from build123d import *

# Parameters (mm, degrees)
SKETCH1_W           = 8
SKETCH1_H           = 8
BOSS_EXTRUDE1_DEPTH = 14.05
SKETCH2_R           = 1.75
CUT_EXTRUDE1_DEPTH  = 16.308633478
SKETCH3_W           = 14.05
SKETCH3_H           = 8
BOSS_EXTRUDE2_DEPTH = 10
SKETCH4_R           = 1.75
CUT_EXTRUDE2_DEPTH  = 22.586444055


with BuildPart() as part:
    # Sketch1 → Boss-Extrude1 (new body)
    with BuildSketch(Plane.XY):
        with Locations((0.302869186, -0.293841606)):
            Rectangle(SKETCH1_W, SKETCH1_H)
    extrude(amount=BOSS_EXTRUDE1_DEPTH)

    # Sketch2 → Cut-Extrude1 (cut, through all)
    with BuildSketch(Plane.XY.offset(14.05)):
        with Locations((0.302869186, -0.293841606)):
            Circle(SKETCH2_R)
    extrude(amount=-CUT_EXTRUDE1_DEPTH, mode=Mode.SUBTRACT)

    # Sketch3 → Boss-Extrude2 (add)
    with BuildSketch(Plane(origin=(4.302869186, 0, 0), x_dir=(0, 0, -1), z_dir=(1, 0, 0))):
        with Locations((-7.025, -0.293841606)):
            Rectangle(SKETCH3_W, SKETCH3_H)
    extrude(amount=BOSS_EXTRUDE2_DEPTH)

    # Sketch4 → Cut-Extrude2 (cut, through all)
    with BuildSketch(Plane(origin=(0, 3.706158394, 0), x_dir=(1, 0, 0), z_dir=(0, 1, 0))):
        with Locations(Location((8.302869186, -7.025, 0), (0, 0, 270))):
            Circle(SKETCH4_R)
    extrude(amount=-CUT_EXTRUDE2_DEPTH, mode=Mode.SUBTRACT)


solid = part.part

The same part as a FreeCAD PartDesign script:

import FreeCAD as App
import Part
import Sketcher
from FreeCAD import Vector


def add_polygon(sketch, points):
    """Adds a closed chain of lines whose ends are joined by coincident constraints."""
    first, n = sketch.GeometryCount, len(points)
    for a, b in zip(points, points[1:] + points[:1]):
        sketch.addGeometry(Part.LineSegment(App.Vector(*a, 0), App.Vector(*b, 0)), False)
    for i in range(n):
        sketch.addConstraint(Sketcher.Constraint("Coincident", first + i, 2, first + (i + 1) % n, 1))

doc = App.newDocument("Part")
body = doc.addObject("PartDesign::Body", "Body")

# Sketch on XY plane
sketch1 = doc.addObject("Sketcher::SketchObject", "Sketch")
body.addObject(sketch1)
sketch1.AttachmentSupport = (doc.XY_Plane, [""])
sketch1.MapMode = "FlatFace"
add_polygon(sketch1, [(-4, 4), (-4, -4), (4, -4), (4, 4)])  # lines 0-3
sketch1.addConstraint([
    Sketcher.Constraint("Vertical", 0),
    Sketcher.Constraint("Horizontal", 1),
    Sketcher.Constraint("Vertical", 2),
    Sketcher.Constraint("Horizontal", 3),
    Sketcher.Constraint("Equal", 3, 0),
    Sketcher.Constraint("DistanceX", 1, 1, 1, 2, 8.0),
    Sketcher.Constraint("DistanceX", 0, 2, -1, 1, 3.697131),
    Sketcher.Constraint("DistanceY", 0, 2, -1, 1, 4.293842),
])
pad1 = doc.addObject("PartDesign::Pad", "Pad")
body.addObject(pad1)
pad1.Profile = sketch1
pad1.Length = 14.05

# Sketch on XY plane
sketch2 = doc.addObject("Sketcher::SketchObject", "Sketch001")
body.addObject(sketch2)
sketch2.AttachmentSupport = (doc.XY_Plane, [""])
sketch2.MapMode = "FlatFace"
sketch2.AttachmentOffset = App.Placement(Vector(0, 0, 14.05), App.Rotation())
sketch2.addGeometry(Part.Circle(Vector(0.3, -0.3, 0), Vector(0, 0, 1), 1.8), False)
sketch2.addConstraint([
    Sketcher.Constraint("Diameter", 0, 3.5),
    Sketcher.Constraint("DistanceX", -1, 1, 0, 3, 0.302869),
    Sketcher.Constraint("DistanceY", 0, 3, -1, 1, 0.293842),
])
pocket1 = doc.addObject("PartDesign::Pocket", "Pocket")
body.addObject(pocket1)
pocket1.Profile = sketch2
pocket1.Type = "ThroughAll"

# Sketch on YZ plane
sketch3 = doc.addObject("Sketcher::SketchObject", "Sketch002")
body.addObject(sketch3)
sketch3.AttachmentSupport = (doc.YZ_Plane, [""])
sketch3.MapMode = "FlatFace"
sketch3.AttachmentOffset = App.Placement(Vector(0, 0, 4.302869), App.Rotation())
add_polygon(sketch3, [(4, 14), (-4, 14), (-4, 0), (4, 0)])  # lines 0-3
sketch3.addConstraint([
    Sketcher.Constraint("Horizontal", 0),
    Sketcher.Constraint("Vertical", 1),
    Sketcher.Constraint("Horizontal", 2),
    Sketcher.Constraint("Vertical", 3),
    Sketcher.Constraint("PointOnObject", 1, 2, -1),
    Sketcher.Constraint("DistanceX", 0, 2, 0, 1, 8.0),
    Sketcher.Constraint("DistanceY", 1, 2, 1, 1, 14.05),
    Sketcher.Constraint("DistanceX", 0, 2, -1, 1, 4.293842),
])
pad2 = doc.addObject("PartDesign::Pad", "Pad001")
body.addObject(pad2)
pad2.Profile = sketch3
pad2.Length = 10

# Sketch on XZ plane
sketch4 = doc.addObject("Sketcher::SketchObject", "Sketch003")
body.addObject(sketch4)
sketch4.AttachmentSupport = (doc.XZ_Plane, [""])
sketch4.MapMode = "FlatFace"
sketch4.AttachmentOffset = App.Placement(Vector(0, 0, -3.706158), App.Rotation())
sketch4.addGeometry(Part.Circle(Vector(8.3, 7, 0), Vector(0, 0, 1), 1.8), False)
sketch4.addConstraint([
    Sketcher.Constraint("Diameter", 0, 3.5),
    Sketcher.Constraint("DistanceY", -1, 1, 0, 3, 7.025),
    Sketcher.Constraint("DistanceX", -1, 1, 0, 3, 8.302869),
])
pocket2 = doc.addObject("PartDesign::Pocket", "Pocket001")
body.addObject(pocket2)
pocket2.Profile = sketch4
pocket2.Type = "ThroughAll"
pocket2.Reversed = True

doc.recompute()
